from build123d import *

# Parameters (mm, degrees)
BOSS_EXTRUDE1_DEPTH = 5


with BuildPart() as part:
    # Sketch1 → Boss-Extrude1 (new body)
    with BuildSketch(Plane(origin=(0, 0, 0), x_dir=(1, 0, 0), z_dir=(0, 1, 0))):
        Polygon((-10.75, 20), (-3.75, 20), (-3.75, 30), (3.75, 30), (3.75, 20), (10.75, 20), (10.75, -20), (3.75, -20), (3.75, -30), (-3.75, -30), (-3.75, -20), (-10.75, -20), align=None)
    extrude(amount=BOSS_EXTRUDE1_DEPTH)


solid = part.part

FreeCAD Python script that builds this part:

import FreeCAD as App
import Part
import Sketcher

doc = App.newDocument("Part")
body = doc.addObject("PartDesign::Body", "Body")

# Sketch on XZ plane
sketch1 = doc.addObject("Sketcher::SketchObject", "Sketch")
body.addObject(sketch1)
sketch1.AttachmentSupport = (doc.XZ_Plane, [""])
sketch1.MapMode = "FlatFace"
sketch1.addGeometry([
    Part.LineSegment(App.Vector(-4, -20, 0), App.Vector(-11, -20, 0)),  # 0
    Part.LineSegment(App.Vector(-11, -20, 0), App.Vector(-11, 20, 0)),  # 1
    Part.LineSegment(App.Vector(-11, 20, 0), App.Vector(-4, 20, 0)),  # 2
    Part.LineSegment(App.Vector(-4, 20, 0), App.Vector(-4, 30, 0)),  # 3
    Part.LineSegment(App.Vector(-4, 30, 0), App.Vector(4, 30, 0)),  # 4
    Part.LineSegment(App.Vector(4, 30, 0), App.Vector(4, 20, 0)),  # 5
    Part.LineSegment(App.Vector(4, 20, 0), App.Vector(11, 20, 0)),  # 6
    Part.LineSegment(App.Vector(11, 20, 0), App.Vector(11, -20, 0)),  # 7
    Part.LineSegment(App.Vector(11, -20, 0), App.Vector(4, -20, 0)),  # 8
    Part.LineSegment(App.Vector(4, -20, 0), App.Vector(4, -30, 0)),  # 9
    Part.LineSegment(App.Vector(4, -30, 0), App.Vector(-4, -30, 0)),  # 10
    Part.LineSegment(App.Vector(-4, -30, 0), App.Vector(-4, -20, 0)),  # 11
], False)
sketch1.addConstraint([
    Sketcher.Constraint("Coincident", 0, 2, 1, 1),
    Sketcher.Constraint("Coincident", 1, 2, 2, 1),
    Sketcher.Constraint("Coincident", 2, 2, 3, 1),
    Sketcher.Constraint("Coincident", 3, 2, 4, 1),
    Sketcher.Constraint("Coincident", 4, 2, 5, 1),
    Sketcher.Constraint("Coincident", 5, 2, 6, 1),
    Sketcher.Constraint("Coincident", 6, 2, 7, 1),
    Sketcher.Constraint("Coincident", 7, 2, 8, 1),
    Sketcher.Constraint("Coincident", 8, 2, 9, 1),
    Sketcher.Constraint("Coincident", 9, 2, 10, 1),
    Sketcher.Constraint("Coincident", 10, 2, 11, 1),
    Sketcher.Constraint("Coincident", 11, 2, 0, 1),
    Sketcher.Constraint("Horizontal", 0),
    Sketcher.Constraint("Vertical", 1),
    Sketcher.Constraint("Horizontal", 2),
    Sketcher.Constraint("Vertical", 3),
    Sketcher.Constraint("Horizontal", 4),
    Sketcher.Constraint("Vertical", 5),
    Sketcher.Constraint("Horizontal", 6),
    Sketcher.Constraint("Vertical", 7),
    Sketcher.Constraint("Horizontal", 8),
    Sketcher.Constraint("Vertical", 9),
    Sketcher.Constraint("Horizontal", 10),
    Sketcher.Constraint("Vertical", 11),
    Sketcher.Constraint("Symmetric", 0, 2, 6, 2, -1, 1),
    Sketcher.Constraint("Symmetric", 2, 2, 8, 2, -1, 1),
    Sketcher.Constraint("Symmetric", 4, 2, 10, 2, -1, 1),
    Sketcher.Constraint("Symmetric", 2, 2, 5, 2, -2),
    Sketcher.Constraint("DistanceX", 0, 2, 0, 1, 7.0),
    Sketcher.Constraint("DistanceY", 1, 1, 1, 2, 40.0),
    Sketcher.Constraint("DistanceY", 3, 1, 3, 2, 10.0),
    Sketcher.Constraint("DistanceX", 4, 1, 4, 2, 7.5),
])
pad1 = doc.addObject("PartDesign::Pad", "Pad")
body.addObject(pad1)
pad1.Profile = sketch1
pad1.Length = 5
pad1.Reversed = True

doc.recompute()
